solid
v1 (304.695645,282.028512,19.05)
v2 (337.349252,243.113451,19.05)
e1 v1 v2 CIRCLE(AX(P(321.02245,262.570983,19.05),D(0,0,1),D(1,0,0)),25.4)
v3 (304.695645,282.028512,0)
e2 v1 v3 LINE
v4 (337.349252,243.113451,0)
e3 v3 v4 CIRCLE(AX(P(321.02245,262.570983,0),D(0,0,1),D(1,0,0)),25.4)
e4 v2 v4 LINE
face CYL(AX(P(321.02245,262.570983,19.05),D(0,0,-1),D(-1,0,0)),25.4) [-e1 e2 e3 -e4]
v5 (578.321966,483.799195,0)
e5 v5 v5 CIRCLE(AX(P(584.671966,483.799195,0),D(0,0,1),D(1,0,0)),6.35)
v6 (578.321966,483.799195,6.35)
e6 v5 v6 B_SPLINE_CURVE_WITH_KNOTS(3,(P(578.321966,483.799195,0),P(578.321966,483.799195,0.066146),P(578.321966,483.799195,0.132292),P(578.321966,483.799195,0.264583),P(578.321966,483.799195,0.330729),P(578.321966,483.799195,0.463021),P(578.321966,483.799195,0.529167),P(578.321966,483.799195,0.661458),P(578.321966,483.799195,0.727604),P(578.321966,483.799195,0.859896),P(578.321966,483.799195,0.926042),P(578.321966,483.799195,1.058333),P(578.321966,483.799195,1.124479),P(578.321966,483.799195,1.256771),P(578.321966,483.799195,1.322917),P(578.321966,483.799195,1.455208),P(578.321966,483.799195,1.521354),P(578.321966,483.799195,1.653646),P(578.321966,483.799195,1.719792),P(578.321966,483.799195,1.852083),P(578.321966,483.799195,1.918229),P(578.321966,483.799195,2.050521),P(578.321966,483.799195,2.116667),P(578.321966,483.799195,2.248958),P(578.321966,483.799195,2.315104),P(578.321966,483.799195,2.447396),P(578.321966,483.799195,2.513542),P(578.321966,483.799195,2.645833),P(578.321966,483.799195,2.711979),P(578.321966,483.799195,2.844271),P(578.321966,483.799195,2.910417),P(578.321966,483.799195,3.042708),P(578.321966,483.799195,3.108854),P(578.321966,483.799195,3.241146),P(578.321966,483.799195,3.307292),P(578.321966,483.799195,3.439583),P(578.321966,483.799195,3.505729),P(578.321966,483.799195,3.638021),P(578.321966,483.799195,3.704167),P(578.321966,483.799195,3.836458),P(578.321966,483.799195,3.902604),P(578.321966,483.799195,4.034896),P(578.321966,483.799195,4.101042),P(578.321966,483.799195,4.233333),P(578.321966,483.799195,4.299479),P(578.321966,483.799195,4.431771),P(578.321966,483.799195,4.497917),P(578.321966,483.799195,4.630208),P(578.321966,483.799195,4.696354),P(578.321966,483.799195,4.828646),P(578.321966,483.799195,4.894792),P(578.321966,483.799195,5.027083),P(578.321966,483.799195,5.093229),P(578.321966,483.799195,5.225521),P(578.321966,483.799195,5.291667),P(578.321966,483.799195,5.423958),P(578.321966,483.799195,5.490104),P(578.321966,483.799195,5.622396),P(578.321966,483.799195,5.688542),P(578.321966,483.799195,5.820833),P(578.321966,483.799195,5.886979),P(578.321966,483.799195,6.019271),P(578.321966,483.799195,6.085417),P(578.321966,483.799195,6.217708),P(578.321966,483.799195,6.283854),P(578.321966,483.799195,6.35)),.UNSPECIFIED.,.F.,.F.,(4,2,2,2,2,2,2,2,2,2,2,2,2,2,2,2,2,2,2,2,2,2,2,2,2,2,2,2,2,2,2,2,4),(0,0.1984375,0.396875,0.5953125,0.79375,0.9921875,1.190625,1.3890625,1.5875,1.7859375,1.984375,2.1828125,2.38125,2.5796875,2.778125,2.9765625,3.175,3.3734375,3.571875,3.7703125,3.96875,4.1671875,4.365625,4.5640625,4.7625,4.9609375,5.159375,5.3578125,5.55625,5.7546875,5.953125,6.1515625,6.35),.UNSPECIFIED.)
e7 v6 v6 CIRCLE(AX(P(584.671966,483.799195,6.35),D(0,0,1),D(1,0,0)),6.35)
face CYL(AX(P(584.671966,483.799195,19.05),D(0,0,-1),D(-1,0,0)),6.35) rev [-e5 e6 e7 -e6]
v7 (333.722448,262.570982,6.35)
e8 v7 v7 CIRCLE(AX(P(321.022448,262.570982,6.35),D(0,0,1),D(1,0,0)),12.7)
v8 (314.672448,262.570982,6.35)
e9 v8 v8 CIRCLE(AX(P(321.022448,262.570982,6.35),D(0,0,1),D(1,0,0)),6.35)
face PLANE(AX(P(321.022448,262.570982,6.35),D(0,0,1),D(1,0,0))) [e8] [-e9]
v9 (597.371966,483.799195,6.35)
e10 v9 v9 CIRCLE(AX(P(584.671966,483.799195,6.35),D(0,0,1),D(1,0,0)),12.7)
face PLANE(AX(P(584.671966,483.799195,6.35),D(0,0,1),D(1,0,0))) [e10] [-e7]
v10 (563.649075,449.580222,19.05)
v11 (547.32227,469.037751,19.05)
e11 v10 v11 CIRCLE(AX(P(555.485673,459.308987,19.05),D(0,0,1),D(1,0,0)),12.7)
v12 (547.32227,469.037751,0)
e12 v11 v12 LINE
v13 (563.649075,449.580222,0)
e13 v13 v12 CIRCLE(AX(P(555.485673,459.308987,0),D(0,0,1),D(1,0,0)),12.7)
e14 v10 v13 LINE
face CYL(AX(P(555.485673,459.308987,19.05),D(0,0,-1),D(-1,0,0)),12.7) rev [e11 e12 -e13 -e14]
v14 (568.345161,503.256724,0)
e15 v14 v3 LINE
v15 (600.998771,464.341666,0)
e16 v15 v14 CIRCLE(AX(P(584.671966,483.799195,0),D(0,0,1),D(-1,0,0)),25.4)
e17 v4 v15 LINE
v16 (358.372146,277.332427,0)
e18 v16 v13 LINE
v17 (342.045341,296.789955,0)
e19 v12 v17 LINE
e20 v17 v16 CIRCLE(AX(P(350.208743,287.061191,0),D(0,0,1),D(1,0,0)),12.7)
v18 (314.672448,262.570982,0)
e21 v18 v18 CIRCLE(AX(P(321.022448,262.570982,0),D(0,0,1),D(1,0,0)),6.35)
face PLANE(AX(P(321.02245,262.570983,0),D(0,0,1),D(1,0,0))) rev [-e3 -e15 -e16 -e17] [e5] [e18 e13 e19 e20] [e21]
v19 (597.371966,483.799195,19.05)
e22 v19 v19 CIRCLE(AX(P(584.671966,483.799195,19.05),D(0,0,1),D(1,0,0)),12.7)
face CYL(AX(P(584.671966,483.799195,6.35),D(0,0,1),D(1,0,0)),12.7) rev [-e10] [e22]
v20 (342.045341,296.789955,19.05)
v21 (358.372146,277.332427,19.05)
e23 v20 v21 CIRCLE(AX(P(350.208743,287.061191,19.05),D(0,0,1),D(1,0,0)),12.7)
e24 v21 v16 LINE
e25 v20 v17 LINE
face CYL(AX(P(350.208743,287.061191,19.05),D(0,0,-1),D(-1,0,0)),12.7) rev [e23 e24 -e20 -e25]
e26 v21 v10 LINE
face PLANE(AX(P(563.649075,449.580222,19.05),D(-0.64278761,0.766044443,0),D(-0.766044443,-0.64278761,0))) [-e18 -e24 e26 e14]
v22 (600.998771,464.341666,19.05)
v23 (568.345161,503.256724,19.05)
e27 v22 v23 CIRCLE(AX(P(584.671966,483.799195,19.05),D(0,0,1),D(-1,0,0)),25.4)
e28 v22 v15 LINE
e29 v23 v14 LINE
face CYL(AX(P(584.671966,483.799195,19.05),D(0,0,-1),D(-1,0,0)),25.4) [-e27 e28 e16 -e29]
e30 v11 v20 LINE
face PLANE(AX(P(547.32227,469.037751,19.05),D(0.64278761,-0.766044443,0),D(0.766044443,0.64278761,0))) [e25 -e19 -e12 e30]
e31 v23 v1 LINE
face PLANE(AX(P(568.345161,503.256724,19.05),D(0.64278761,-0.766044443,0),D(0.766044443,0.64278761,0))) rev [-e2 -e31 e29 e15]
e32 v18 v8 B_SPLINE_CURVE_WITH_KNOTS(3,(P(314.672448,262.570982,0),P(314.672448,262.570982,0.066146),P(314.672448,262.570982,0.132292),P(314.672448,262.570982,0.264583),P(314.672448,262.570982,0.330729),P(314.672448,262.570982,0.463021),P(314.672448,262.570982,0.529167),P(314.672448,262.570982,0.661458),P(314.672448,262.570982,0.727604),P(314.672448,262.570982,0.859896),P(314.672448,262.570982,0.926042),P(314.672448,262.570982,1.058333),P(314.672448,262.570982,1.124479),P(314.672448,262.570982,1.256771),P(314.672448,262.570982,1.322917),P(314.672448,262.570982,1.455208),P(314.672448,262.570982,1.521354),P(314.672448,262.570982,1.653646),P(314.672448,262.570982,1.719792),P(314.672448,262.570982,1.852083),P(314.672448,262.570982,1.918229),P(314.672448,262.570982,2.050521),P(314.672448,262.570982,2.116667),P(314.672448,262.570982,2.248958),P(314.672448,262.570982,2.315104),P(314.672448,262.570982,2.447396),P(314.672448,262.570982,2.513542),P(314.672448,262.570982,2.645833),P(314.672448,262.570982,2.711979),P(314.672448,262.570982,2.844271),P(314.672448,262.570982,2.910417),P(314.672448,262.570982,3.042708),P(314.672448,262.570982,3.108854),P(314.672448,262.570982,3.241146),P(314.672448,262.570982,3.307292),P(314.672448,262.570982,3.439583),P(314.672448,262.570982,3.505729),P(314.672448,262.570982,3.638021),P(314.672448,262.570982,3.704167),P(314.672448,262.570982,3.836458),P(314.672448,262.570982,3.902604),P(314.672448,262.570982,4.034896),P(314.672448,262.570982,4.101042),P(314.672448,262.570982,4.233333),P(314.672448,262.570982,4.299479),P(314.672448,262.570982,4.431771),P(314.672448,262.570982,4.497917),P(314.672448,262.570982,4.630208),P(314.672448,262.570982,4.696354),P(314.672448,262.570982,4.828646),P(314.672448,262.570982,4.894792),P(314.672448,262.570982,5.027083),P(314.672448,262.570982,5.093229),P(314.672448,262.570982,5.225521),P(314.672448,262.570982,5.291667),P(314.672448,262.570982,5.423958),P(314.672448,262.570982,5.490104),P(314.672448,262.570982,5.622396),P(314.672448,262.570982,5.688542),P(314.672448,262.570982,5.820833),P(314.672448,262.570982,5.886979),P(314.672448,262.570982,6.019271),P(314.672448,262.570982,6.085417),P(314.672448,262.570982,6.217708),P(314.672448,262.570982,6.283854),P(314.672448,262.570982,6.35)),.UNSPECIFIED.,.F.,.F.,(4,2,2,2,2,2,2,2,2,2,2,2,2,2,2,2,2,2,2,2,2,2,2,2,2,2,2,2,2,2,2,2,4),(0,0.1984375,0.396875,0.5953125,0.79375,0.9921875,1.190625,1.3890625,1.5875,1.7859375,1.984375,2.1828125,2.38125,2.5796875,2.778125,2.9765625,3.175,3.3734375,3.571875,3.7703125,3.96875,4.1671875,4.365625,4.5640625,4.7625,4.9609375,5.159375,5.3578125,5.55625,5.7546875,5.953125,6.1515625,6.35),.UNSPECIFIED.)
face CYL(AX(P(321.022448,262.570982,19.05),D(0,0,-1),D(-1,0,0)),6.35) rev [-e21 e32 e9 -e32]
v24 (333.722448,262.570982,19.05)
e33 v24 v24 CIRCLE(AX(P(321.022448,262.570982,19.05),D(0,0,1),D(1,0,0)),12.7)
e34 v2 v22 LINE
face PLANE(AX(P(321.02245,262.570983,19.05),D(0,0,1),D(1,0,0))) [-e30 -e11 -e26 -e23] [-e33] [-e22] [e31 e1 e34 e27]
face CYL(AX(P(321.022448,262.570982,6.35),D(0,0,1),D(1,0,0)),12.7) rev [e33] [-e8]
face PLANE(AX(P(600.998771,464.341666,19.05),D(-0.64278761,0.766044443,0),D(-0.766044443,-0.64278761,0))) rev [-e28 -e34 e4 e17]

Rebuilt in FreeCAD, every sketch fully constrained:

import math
import FreeCAD as App
import Part
import Sketcher

V = App.Vector
Q = App.Units.Quantity

doc = App.newDocument("Part")
body = doc.addObject("PartDesign::Body", "Body")

sketch1 = doc.addObject("Sketcher::SketchObject", "Sketch")
body.addObject(sketch1)
sketch1.AttachmentSupport = (doc.XY_Plane, [""])
sketch1.MapMode = "FlatFace"
sketch1.addGeometry([
    Part.LineSegment(V(568, 503, 0), V(305, 282, 0)),
    Part.ArcOfCircle(Part.Circle(V(321, 263, 0), V(0, 0, 1), 25), math.radians(130), math.radians(310)),
    Part.LineSegment(V(337, 243, 0), V(601, 464, 0)),
    Part.ArcOfCircle(Part.Circle(V(585, 484, 0), V(0, 0, 1), 25), math.radians(-50), math.radians(130)),
    Part.Circle(V(321, 263, 0), V(0, 0, 1), 6),
    Part.ArcOfCircle(Part.Circle(V(555, 459, 0), V(0, 0, 1), 13), math.radians(-50), math.radians(130)),
    Part.LineSegment(V(564, 450, 0), V(358, 277, 0)),
    Part.ArcOfCircle(Part.Circle(V(350, 287, 0), V(0, 0, 1), 13), math.radians(130), math.radians(310)),
    Part.LineSegment(V(342, 297, 0), V(547, 469, 0)),
    Part.Circle(V(585, 484, 0), V(0, 0, 1), 6),
], False)
sketch1.addConstraint([
    Sketcher.Constraint("Tangent", 0, 2, 1, 1),
    Sketcher.Constraint("Tangent", 1, 2, 2, 1),
    Sketcher.Constraint("Tangent", 2, 2, 3, 1),
    Sketcher.Constraint("Tangent", 3, 2, 0, 1),
    Sketcher.Constraint("Tangent", 5, 1, 6, 1),
    Sketcher.Constraint("Tangent", 6, 2, 7, 2),
    Sketcher.Constraint("Tangent", 7, 1, 8, 1),
    Sketcher.Constraint("Tangent", 8, 2, 5, 2),
    Sketcher.Constraint("Coincident", 4, 3, 1, 3),
    Sketcher.Constraint("Coincident", 9, 3, 3, 3),
    Sketcher.Constraint("Equal", 1, 3),
    Sketcher.Constraint("Equal", 5, 7),
    Sketcher.Constraint("Equal", 4, 9),
    Sketcher.Constraint("Parallel", 2, 6),
    Sketcher.Constraint("Radius", 1, Q("1 in")),
    Sketcher.Constraint("Diameter", 4, Q("0.5 in")),
    Sketcher.Constraint("Radius", 5, Q("0.5 in")),
    Sketcher.Constraint("Angle", 0, Q("-140 deg")),
    Sketcher.Constraint("Distance", 0, Q("13.55 in")),
    Sketcher.Constraint("Distance", 6, Q("10.55 in")),
    Sketcher.Constraint("DistanceX", 0, 2, 7, 3, 45.513099),
    Sketcher.Constraint("DistanceY", 5, 1, 3, 2, 53.676501),
    Sketcher.Constraint("DistanceX", -1, 1, 1, 3, 321.02245),
    Sketcher.Constraint("DistanceY", -1, 1, 4, 3, 262.570982),
])
pad1 = doc.addObject("PartDesign::Pad", "Pad")
body.addObject(pad1)
pad1.Profile = sketch1
pad1.Length = Q("0.75 in")

sketch2 = doc.addObject("Sketcher::SketchObject", "Sketch001")
body.addObject(sketch2)
sketch2.AttachmentSupport = (doc.XY_Plane, [""])
sketch2.MapMode = "FlatFace"
sketch2.AttachmentOffset = App.Placement(V(0, 0, 0.75 * 25.4), App.Rotation())
sketch2.addGeometry([
    Part.Circle(V(321, 263, 0), V(0, 0, 1), 13),
    Part.Circle(V(585, 484, 0), V(0, 0, 1), 13),
], False)
sketch2.addConstraint([
    Sketcher.Constraint("Equal", 0, 1),
    Sketcher.Constraint("Diameter", 0, Q("1 in")),
    Sketcher.Constraint("DistanceX", -1, 1, 0, 3, 321.022448),
    Sketcher.Constraint("DistanceY", -1, 1, 0, 3, 262.570982),
    Sketcher.Constraint("DistanceX", -1, 1, 1, 3, 584.671966),
    Sketcher.Constraint("DistanceY", -1, 1, 1, 3, 483.799195),
])
pocket1 = doc.addObject("PartDesign::Pocket", "Pocket")
body.addObject(pocket1)
pocket1.Profile = sketch2
pocket1.Length = Q("0.5 in")

doc.recompute()
